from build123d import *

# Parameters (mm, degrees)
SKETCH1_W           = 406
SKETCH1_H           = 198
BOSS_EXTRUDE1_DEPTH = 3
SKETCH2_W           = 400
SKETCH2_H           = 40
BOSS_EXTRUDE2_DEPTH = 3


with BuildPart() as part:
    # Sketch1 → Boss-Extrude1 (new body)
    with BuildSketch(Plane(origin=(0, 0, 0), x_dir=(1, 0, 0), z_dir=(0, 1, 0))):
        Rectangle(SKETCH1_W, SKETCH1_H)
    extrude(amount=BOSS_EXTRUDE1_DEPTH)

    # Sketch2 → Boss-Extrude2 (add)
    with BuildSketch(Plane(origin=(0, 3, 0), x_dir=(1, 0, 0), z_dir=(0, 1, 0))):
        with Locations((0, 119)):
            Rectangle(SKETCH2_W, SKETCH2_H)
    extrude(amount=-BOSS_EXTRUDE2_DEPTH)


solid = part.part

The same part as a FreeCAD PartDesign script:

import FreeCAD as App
import Part
import Sketcher
from FreeCAD import Vector
Q = App.Units.Quantity


def add_polygon(sketch, points):
    """Adds a closed chain of lines whose ends are joined by coincident constraints."""
    first, n = sketch.GeometryCount, len(points)
    for a, b in zip(points, points[1:] + points[:1]):
        sketch.addGeometry(Part.LineSegment(App.Vector(*a, 0), App.Vector(*b, 0)), False)
    for i in range(n):
        sketch.addConstraint(Sketcher.Constraint("Coincident", first + i, 2, first + (i + 1) % n, 1))

doc = App.newDocument("Part")
body = doc.addObject("PartDesign::Body", "Body")

# Sketch on XZ plane
sketch1 = body.newObject("Sketcher::SketchObject", "Sketch")
sketch1.AttachmentSupport = (doc.getObject("XZ_Plane"), [""])
sketch1.MapMode = "FlatFace"
add_polygon(sketch1, [(-203, -99), (-203, 99), (203, 99), (203, -99)])  # lines 0-3
sketch1.addConstraint(Sketcher.Constraint("Vertical", 0))
sketch1.addConstraint(Sketcher.Constraint("Horizontal", 1))
sketch1.addConstraint(Sketcher.Constraint("Vertical", 2))
sketch1.addConstraint(Sketcher.Constraint("Horizontal", 3))
sketch1.addConstraint(Sketcher.Constraint("Symmetric", 0, 2, 2, 2, -1, 1))
sketch1.addConstraint(Sketcher.Constraint("DistanceX", 1, 1, 1, 2, Q("406 mm")))
sketch1.addConstraint(Sketcher.Constraint("DistanceY", 0, 1, 0, 2, Q("198 mm")))
pad1 = body.newObject("PartDesign::Pad", "Pad")
pad1.Profile = sketch1
pad1.Length = 3
pad1.Reversed = True

# Sketch on XZ plane
sketch2 = body.newObject("Sketcher::SketchObject", "Sketch001")
sketch2.AttachmentSupport = (doc.getObject("XZ_Plane"), [""])
sketch2.MapMode = "FlatFace"
sketch2.AttachmentOffset = App.Placement(Vector(0, 0, -3), App.Rotation())
add_polygon(sketch2, [(-200, -139), (-200, -99), (200, -99), (200, -139)])  # lines 0-3
sketch2.addConstraint(Sketcher.Constraint("Vertical", 0))
sketch2.addConstraint(Sketcher.Constraint("Horizontal", 1))
sketch2.addConstraint(Sketcher.Constraint("Vertical", 2))
sketch2.addConstraint(Sketcher.Constraint("Horizontal", 3))
sketch2.addConstraint(Sketcher.Constraint("DistanceX", 1, 1, 1, 2, Q("400 mm")))
sketch2.addConstraint(Sketcher.Constraint("DistanceY", 0, 1, 0, 2, Q("40 mm")))
sketch2.addConstraint(Sketcher.Constraint("DistanceX", 0, 2, -1, 1, Q("200 mm")))
sketch2.addConstraint(Sketcher.Constraint("DistanceY", 0, 2, -1, 1, Q("99 mm")))
pad2 = body.newObject("PartDesign::Pad", "Pad001")
pad2.Profile = sketch2
pad2.Length = 3

doc.recompute()
